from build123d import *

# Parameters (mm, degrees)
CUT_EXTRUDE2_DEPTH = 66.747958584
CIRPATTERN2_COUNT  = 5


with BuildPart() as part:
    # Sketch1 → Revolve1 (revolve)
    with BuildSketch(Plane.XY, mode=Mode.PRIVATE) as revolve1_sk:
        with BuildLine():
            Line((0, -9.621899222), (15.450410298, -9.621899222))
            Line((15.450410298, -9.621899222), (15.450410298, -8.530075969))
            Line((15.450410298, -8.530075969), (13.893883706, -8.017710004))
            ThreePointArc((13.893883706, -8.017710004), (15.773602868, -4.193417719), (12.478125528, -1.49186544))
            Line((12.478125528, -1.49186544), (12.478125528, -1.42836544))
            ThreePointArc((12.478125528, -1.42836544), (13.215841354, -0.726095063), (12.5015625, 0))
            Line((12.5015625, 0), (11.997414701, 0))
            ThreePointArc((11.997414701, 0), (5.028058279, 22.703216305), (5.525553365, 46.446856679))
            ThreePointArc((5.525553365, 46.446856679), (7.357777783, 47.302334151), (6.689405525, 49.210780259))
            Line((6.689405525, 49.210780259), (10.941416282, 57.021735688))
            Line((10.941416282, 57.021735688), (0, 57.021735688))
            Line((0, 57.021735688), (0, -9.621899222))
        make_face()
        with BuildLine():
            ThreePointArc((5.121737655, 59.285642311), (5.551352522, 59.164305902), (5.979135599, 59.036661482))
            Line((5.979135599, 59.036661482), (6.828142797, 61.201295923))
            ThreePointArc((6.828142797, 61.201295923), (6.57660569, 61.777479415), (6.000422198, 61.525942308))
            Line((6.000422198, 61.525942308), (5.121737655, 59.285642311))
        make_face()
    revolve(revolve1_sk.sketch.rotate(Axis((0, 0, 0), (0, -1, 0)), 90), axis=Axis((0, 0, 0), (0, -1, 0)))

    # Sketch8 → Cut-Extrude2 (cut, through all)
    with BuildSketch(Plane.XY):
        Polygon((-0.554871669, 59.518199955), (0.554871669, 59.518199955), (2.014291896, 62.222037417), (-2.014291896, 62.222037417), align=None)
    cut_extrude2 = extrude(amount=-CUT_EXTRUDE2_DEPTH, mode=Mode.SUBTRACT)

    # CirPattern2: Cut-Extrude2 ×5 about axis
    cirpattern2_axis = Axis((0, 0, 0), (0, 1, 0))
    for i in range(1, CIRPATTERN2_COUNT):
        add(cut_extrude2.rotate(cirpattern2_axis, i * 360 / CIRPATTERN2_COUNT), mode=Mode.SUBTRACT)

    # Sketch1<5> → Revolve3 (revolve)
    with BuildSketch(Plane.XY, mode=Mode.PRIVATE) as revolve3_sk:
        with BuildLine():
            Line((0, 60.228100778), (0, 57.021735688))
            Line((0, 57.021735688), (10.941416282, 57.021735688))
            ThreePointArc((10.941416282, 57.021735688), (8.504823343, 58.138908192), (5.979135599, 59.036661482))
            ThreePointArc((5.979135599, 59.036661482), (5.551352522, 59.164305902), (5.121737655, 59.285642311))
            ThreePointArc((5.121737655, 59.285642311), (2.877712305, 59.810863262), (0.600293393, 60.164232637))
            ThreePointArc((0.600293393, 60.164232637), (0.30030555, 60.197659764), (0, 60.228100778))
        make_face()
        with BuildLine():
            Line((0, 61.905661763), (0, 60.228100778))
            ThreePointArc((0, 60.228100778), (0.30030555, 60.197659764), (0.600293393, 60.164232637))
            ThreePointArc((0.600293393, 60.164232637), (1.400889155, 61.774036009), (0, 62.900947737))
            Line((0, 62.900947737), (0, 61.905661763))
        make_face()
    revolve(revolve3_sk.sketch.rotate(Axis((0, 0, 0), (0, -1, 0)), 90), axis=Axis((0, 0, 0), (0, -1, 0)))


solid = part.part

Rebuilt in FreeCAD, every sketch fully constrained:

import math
import FreeCAD as App
import Part
import Sketcher
from FreeCAD import Vector
Q = App.Units.Quantity


def add_polygon(sketch, points):
    """Adds a closed chain of lines whose ends are joined by coincident constraints."""
    first, n = sketch.GeometryCount, len(points)
    for a, b in zip(points, points[1:] + points[:1]):
        sketch.addGeometry(Part.LineSegment(App.Vector(*a, 0), App.Vector(*b, 0)), False)
    for i in range(n):
        sketch.addConstraint(Sketcher.Constraint("Coincident", first + i, 2, first + (i + 1) % n, 1))

doc = App.newDocument("Part")
body = doc.addObject("PartDesign::Body", "Body")
body.AllowCompound = True

sketch1 = doc.addObject("Sketcher::SketchObject", "Sketch")
body.addObject(sketch1)
sketch1.AttachmentSupport = (doc.XY_Plane, [""])
sketch1.MapMode = "FlatFace"
sketch1.addGeometry(Part.LineSegment(Vector(0, -9.621899, 0), Vector(15.45041, -9.621899, 0)), False)
sketch1.addGeometry(Part.LineSegment(Vector(15.45041, -9.621899, 0), Vector(15.45041, -8.530076, 0)), False)
sketch1.addGeometry(Part.LineSegment(Vector(15.45041, -8.530076, 0), Vector(13.893884, -8.01771, 0)), False)
sketch1.addGeometry(Part.ArcOfCircle(Part.Circle(Vector(12.422556, -4.920415, 0), Vector(0, 0, 1), 3.429), math.radians(-64.59058), math.radians(89.071436)), False)
sketch1.addGeometry(Part.LineSegment(Vector(12.478126, -1.491865, 0), Vector(12.478126, -1.428365, 0)), False)
sketch1.addGeometry(Part.ArcOfCircle(Part.Circle(Vector(12.501563, -0.714375, 0), Vector(0, 0, 1), 0.714375), math.radians(-91.880078), math.radians(90)), False)
sketch1.addGeometry(Part.LineSegment(Vector(12.501563, 0, 0), Vector(11.997415, 0, 0)), False)
sketch1.addGeometry(Part.ArcOfCircle(Part.Circle(Vector(79.124361, 33.027725, 0), Vector(0, 0, 1), 74.812149), math.radians(169.666875), math.radians(206.198057)), False)
sketch1.addGeometry(Part.ArcOfCircle(Part.Circle(Vector(5.968884, 47.887179, 0), Vector(0, 0, 1), 1.507007), math.radians(-107.108323), math.radians(61.437674)), False)
sketch1.addGeometry(Part.LineSegment(Vector(6.689406, 49.21078, 0), Vector(10.941416, 57.021736, 0)), False)
sketch1.addGeometry(Part.LineSegment(Vector(10.941416, 57.021736, 0), Vector(0, 57.021736, 0)), False)
sketch1.addGeometry(Part.LineSegment(Vector(0, 57.021736, 0), Vector(0, -9.621899, 0)), False)
sketch1.addGeometry(Part.ArcOfCircle(Part.Circle(Vector(-2.909603, 30.027901, 0), Vector(0, 0, 1), 30.340038), math.radians(72.964114), math.radians(74.65022)), False)
sketch1.addGeometry(Part.LineSegment(Vector(5.979136, 59.036661, 0), Vector(6.828143, 61.201296, 0)), False)
sketch1.addGeometry(Part.ArcOfCircle(Part.Circle(Vector(6.414282, 61.363619, 0), Vector(0, 0, 1), 0.444555), math.radians(-21.415974), math.radians(158.584027)), False)
sketch1.addGeometry(Part.LineSegment(Vector(6.000422, 61.525942, 0), Vector(5.121738, 59.285642, 0)), False)
sketch1.addConstraint(Sketcher.Constraint("Coincident", 0, 2, 1, 1))
sketch1.addConstraint(Sketcher.Constraint("Coincident", 1, 2, 2, 1))
sketch1.addConstraint(Sketcher.Constraint("Coincident", 2, 2, 3, 1))
sketch1.addConstraint(Sketcher.Constraint("Coincident", 3, 2, 4, 1))
sketch1.addConstraint(Sketcher.Constraint("Coincident", 4, 2, 5, 1))
sketch1.addConstraint(Sketcher.Constraint("Tangent", 5, 2, 6, 1))
sketch1.addConstraint(Sketcher.Constraint("Coincident", 6, 2, 7, 2))
sketch1.addConstraint(Sketcher.Constraint("Coincident", 7, 1, 8, 1))
sketch1.addConstraint(Sketcher.Constraint("Coincident", 8, 2, 9, 1))
sketch1.addConstraint(Sketcher.Constraint("Coincident", 9, 2, 10, 1))
sketch1.addConstraint(Sketcher.Constraint("Coincident", 10, 2, 11, 1))
sketch1.addConstraint(Sketcher.Constraint("Coincident", 11, 2, 0, 1))
sketch1.addConstraint(Sketcher.Constraint("Coincident", 12, 1, 13, 1))
sketch1.addConstraint(Sketcher.Constraint("Tangent", 13, 2, 14, 1))
sketch1.addConstraint(Sketcher.Constraint("Tangent", 14, 2, 15, 1))
sketch1.addConstraint(Sketcher.Constraint("Coincident", 15, 2, 12, 2))
sketch1.addConstraint(Sketcher.Constraint("Horizontal", 0))
sketch1.addConstraint(Sketcher.Constraint("Vertical", 1))
sketch1.addConstraint(Sketcher.Constraint("Vertical", 4))
sketch1.addConstraint(Sketcher.Constraint("Horizontal", 6))
sketch1.addConstraint(Sketcher.Constraint("Horizontal", 10))
sketch1.addConstraint(Sketcher.Constraint("Vertical", 11))
sketch1.addConstraint(Sketcher.Constraint("PointOnObject", 5, 2, -1))
sketch1.addConstraint(Sketcher.Constraint("PointOnObject", 10, 2, -2))
sketch1.addConstraint(Sketcher.Constraint("Parallel", 13, 15))
sketch1.addConstraint(Sketcher.Constraint("Radius", 3, Q("0.135 in")))
sketch1.addConstraint(Sketcher.Constraint("DistanceY", 4, 1, 4, 2, Q("0.0025 in")))
sketch1.addConstraint(Sketcher.Constraint("Radius", 7, Q("74.812149 mm")))
sketch1.addConstraint(Sketcher.Constraint("DistanceY", -1, 1, 13, 2, Q("2.4094998 in")))
sketch1.addConstraint(Sketcher.Constraint("Radius", 5, Q("0.714375 mm")))
sketch1.addConstraint(Sketcher.Constraint("Radius", 8, Q("1.507007 mm")))
sketch1.addConstraint(Sketcher.Constraint("Radius", 12, Q("30.340038 mm")))
sketch1.addConstraint(Sketcher.Constraint("Radius", 14, Q("0.444555 mm")))
sketch1.addConstraint(Sketcher.Constraint("DistanceX", 0, 1, 0, 2, Q("15.45041 mm")))
sketch1.addConstraint(Sketcher.Constraint("DistanceY", -1, 1, 12, 3, Q("30.027901 mm")))
sketch1.addConstraint(Sketcher.Constraint("DistanceY", 0, 2, -1, 1, Q("9.621899 mm")))
sketch1.addConstraint(Sketcher.Constraint("DistanceX", 5, 3, 7, 3, Q("66.622799 mm")))
sketch1.addConstraint(Sketcher.Constraint("DistanceY", 5, 3, 7, 3, Q("33.7421 mm")))
sketch1.addConstraint(Sketcher.Constraint("DistanceX", 8, 3, 14, 3, Q("0.445399 mm")))
sketch1.addConstraint(Sketcher.Constraint("DistanceY", 1, 2, 5, 3, Q("7.815701 mm")))
sketch1.addConstraint(Sketcher.Constraint("DistanceY", 8, 3, 8, 2, Q("1.323601 mm")))
sketch1.addConstraint(Sketcher.Constraint("DistanceY", 15, 2, 14, 2, Q("2.2403 mm")))
sketch1.addConstraint(Sketcher.Constraint("Distance", 9, Q("8.893291 mm")))
sketch1.addConstraint(Sketcher.Constraint("Distance", 13, Q("2.325179 mm")))
sketch1.addConstraint(Sketcher.Constraint("DistanceX", 10, 2, 10, 1, Q("10.941416 mm")))
sketch1.addConstraint(Sketcher.Constraint("DistanceY", 11, 2, 11, 1, Q("66.643635 mm")))
sketch1.addConstraint(Sketcher.Constraint("DistanceX", -1, 1, 7, 3, Q("79.124361 mm")))
sketch1.addConstraint(Sketcher.Constraint("DistanceY", -1, 1, 8, 3, Q("47.887179 mm")))
sketch1.addConstraint(Sketcher.Constraint("DistanceY", 2, 2, -1, 1, Q("8.01771 mm")))
sketch1.addConstraint(Sketcher.Constraint("DistanceY", 3, 3, 5, 3, Q("4.20604 mm")))
sketch1.addConstraint(Sketcher.Constraint("DistanceX", 12, 3, 3, 3, Q("15.332159 mm")))
revolution = doc.addObject("PartDesign::Revolution", "Revolution")
body.addObject(revolution)
revolution.Profile = sketch1
revolution.ReferenceAxis = (sketch1, ["V_Axis"])
revolution.Angle = 360

sketch2 = doc.addObject("Sketcher::SketchObject", "Sketch001")
body.addObject(sketch2)
sketch2.AttachmentSupport = (doc.XY_Plane, [""])
sketch2.MapMode = "FlatFace"
add_polygon(sketch2, [(-0.554872, 59.5182), (0.554872, 59.5182), (2.014292, 62.222037), (-2.014292, 62.222037)])
sketch2.addConstraint(Sketcher.Constraint("Horizontal", 0))
sketch2.addConstraint(Sketcher.Constraint("Horizontal", 2))
sketch2.addConstraint(Sketcher.Constraint("Equal", 1, 3))
sketch2.addConstraint(Sketcher.Constraint("DistanceY", -1, 1, 0, 2, Q("59.5182 mm")))
sketch2.addConstraint(Sketcher.Constraint("DistanceX", 0, 1, 0, 2, Q("1.109743 mm")))
sketch2.addConstraint(Sketcher.Constraint("DistanceX", 2, 2, 2, 1, Q("4.028584 mm")))
sketch2.addConstraint(Sketcher.Constraint("DistanceX", -1, 1, 0, 2, Q("0.554872 mm")))
sketch2.addConstraint(Sketcher.Constraint("Distance", 1, Q("3.072563 mm")))
pocket1 = doc.addObject("PartDesign::Pocket", "Pocket")
body.addObject(pocket1)
pocket1.Profile = sketch2
pocket1.Type = "ThroughAll"
doc.recompute()

polarpattern = doc.addObject("PartDesign::PolarPattern", "PolarPattern")
body.addObject(polarpattern)
polarpattern.Originals = [pocket1]
polarpattern.Axis = (doc.Y_Axis, [""])
polarpattern.Angle = 360
polarpattern.Occurrences = 5
body.Tip = polarpattern

sketch3 = doc.addObject("Sketcher::SketchObject", "Sketch002")
body.addObject(sketch3)
sketch3.AttachmentSupport = (doc.XY_Plane, [""])
sketch3.MapMode = "FlatFace"
sketch3.addGeometry(Part.LineSegment(Vector(0, 57.021736, 0), Vector(10.941416, 57.021736, 0)), False)
sketch3.addGeometry(Part.ArcOfCircle(Part.Circle(Vector(-2.909601, 30.027908, 0), Vector(0, 0, 1), 30.34003), math.radians(62.836826), math.radians(72.964114)), False)
sketch3.addGeometry(Part.ArcOfCircle(Part.Circle(Vector(-2.909603, 30.027901, 0), Vector(0, 0, 1), 30.340038), math.radians(72.964114), math.radians(74.65022)), False)
sketch3.addGeometry(Part.ArcOfCircle(Part.Circle(Vector(-2.909601, 30.027908, 0), Vector(0, 0, 1), 30.34003), math.radians(74.65022), math.radians(83.356848)), False)
sketch3.addGeometry(Part.ArcOfCircle(Part.Circle(Vector(0, 61.466754, 0), Vector(0, 0, 1), 1.434194), math.radians(-65.256421), math.radians(90)), False)
sketch3.addGeometry(Part.LineSegment(Vector(0, 62.900948, 0), Vector(0, 57.021736, 0)), False)
sketch3.addConstraint(Sketcher.Constraint("Coincident", 0, 2, 1, 1))
sketch3.addConstraint(Sketcher.Constraint("Tangent", 1, 2, 2, 1))
sketch3.addConstraint(Sketcher.Constraint("Tangent", 2, 2, 3, 1))
sketch3.addConstraint(Sketcher.Constraint("Coincident", 3, 2, 4, 1))
sketch3.addConstraint(Sketcher.Constraint("Coincident", 4, 2, 5, 1))
sketch3.addConstraint(Sketcher.Constraint("Coincident", 5, 2, 0, 1))
sketch3.addConstraint(Sketcher.Constraint("Horizontal", 0))
sketch3.addConstraint(Sketcher.Constraint("Vertical", 5))
sketch3.addConstraint(Sketcher.Constraint("Coincident", 3, 3, 1, 3))
sketch3.addConstraint(Sketcher.Constraint("PointOnObject", 4, 3, -2))
sketch3.addConstraint(Sketcher.Constraint("PointOnObject", 4, 2, -2))
sketch3.addConstraint(Sketcher.Constraint("Radius", 1, Q("30.34003 mm")))
sketch3.addConstraint(Sketcher.Constraint("Radius", 4, Q("1.434194 mm")))
sketch3.addConstraint(Sketcher.Constraint("DistanceX", 1, 3, -1, 1, Q("2.909601 mm")))
sketch3.addConstraint(Sketcher.Constraint("DistanceY", -1, 1, 2, 3, Q("30.027901 mm")))
sketch3.addConstraint(Sketcher.Constraint("DistanceX", 0, 1, 0, 2, Q("10.941416 mm")))
sketch3.addConstraint(Sketcher.Constraint("DistanceY", 5, 2, 5, 1, Q("5.879212 mm")))
sketch3.addConstraint(Sketcher.Constraint("DistanceY", -1, 1, 1, 2, Q("59.036661 mm")))
sketch3.addConstraint(Sketcher.Constraint("DistanceY", 1, 2, 2, 2, Q("0.248981 mm")))
revolution2 = doc.addObject("PartDesign::Revolution", "Revolution001")
body.addObject(revolution2)
revolution2.Profile = sketch3
revolution2.ReferenceAxis = (sketch3, ["V_Axis"])
revolution2.Angle = 360

doc.recompute()
